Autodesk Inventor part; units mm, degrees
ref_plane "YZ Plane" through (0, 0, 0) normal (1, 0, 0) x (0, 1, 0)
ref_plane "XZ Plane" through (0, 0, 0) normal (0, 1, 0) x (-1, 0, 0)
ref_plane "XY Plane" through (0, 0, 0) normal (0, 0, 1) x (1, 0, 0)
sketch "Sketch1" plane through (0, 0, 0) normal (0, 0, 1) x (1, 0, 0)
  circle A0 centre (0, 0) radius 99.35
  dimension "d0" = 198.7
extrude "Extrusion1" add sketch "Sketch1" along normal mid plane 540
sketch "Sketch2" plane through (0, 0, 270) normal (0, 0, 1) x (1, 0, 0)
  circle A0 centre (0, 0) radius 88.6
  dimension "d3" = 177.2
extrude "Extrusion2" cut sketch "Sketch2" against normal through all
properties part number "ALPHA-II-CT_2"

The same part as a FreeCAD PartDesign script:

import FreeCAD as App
import Part
import Sketcher

V = App.Vector

doc = App.newDocument("Part")
body = doc.addObject("PartDesign::Body", "Body")

# Sketch on XY plane
sketch1 = body.newObject("Sketcher::SketchObject", "Sketch")
sketch1.AttachmentSupport = (doc.getObject("XY_Plane"), [""])
sketch1.MapMode = "FlatFace"
sketch1.addGeometry(Part.Circle(V(0, 0, 0), V(0, 0, 1), 99), False)
sketch1.addConstraint([
    Sketcher.Constraint("Coincident", 0, 3, -1, 1),
    Sketcher.Constraint("Diameter", 0, 198.7),
])
pad1 = body.newObject("PartDesign::Pad", "Pad")
pad1.Profile = sketch1
pad1.Length = 540
pad1.Midplane = True

# Sketch on XY plane
sketch2 = body.newObject("Sketcher::SketchObject", "Sketch001")
sketch2.AttachmentSupport = (doc.getObject("XY_Plane"), [""])
sketch2.MapMode = "FlatFace"
sketch2.AttachmentOffset = App.Placement(V(0, 0, 270), App.Rotation())
sketch2.addGeometry(Part.Circle(V(0, 0, 0), V(0, 0, 1), 89), False)
sketch2.addConstraint([
    Sketcher.Constraint("Coincident", 0, 3, -1, 1),
    Sketcher.Constraint("Diameter", 0, 177.2),
])
pocket1 = body.newObject("PartDesign::Pocket", "Pocket")
pocket1.Profile = sketch2
pocket1.Type = "ThroughAll"

doc.recompute()
